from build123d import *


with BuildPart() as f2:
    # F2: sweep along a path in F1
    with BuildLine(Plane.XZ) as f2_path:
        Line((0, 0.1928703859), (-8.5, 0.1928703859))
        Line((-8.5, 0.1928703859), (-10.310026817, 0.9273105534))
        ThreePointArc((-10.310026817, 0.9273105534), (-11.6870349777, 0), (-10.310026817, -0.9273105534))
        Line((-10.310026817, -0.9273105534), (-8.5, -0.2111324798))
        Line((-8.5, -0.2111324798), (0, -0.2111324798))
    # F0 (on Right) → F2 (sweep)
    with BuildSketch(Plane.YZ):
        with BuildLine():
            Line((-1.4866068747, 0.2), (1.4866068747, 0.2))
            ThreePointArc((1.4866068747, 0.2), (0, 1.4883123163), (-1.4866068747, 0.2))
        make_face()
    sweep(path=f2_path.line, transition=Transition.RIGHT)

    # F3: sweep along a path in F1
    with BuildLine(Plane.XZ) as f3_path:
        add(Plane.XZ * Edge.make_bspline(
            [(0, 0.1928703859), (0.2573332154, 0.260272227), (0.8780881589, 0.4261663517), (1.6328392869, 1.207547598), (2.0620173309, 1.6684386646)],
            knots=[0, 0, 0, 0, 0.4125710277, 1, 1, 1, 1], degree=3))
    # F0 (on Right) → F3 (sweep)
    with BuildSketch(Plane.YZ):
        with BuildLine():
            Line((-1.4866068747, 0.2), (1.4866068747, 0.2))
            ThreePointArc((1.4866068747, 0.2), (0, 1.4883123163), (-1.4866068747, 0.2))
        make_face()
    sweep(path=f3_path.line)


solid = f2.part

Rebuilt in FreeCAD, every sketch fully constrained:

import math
import FreeCAD as App
import Part
import Sketcher

doc = App.newDocument("Part")
params = doc.addObject("Spreadsheet::Sheet", "Params")
for row, (alias, value) in enumerate([
    ("sketch2_width", "8.5 mm"),
], start=1):
    params.set(f"A{row}", alias)
    params.set(f"B{row}", "=" + value)
    params.setAlias(f"B{row}", alias)

body = doc.addObject("PartDesign::Body", "Body")

sketch1 = body.newObject("Sketcher::SketchObject", "Sketch")
sketch1.AttachmentSupport = (doc.getObject("YZ_Plane"), [""])
sketch1.MapMode = "FlatFace"
sketch1.addGeometry([
    Part.LineSegment(App.Vector(-1.5, 0.2, 0), App.Vector(1.5, 0.2, 0)),
    Part.ArcOfCircle(Part.Circle(App.Vector(0, 0, 0), App.Vector(0, 0, 1), 1.5), math.radians(8), math.radians(172)),
], False)
sketch1.addConstraint([
    Sketcher.Constraint("Coincident", 0, 1, 1, 2),
    Sketcher.Constraint("Coincident", 1, 1, 0, 2),
    Sketcher.Constraint("Horizontal", 0),
    Sketcher.Constraint("PointOnObject", 1, 3, -2),
    Sketcher.Constraint("DistanceY", -1, 1, 0, 1, 0.2),
    Sketcher.Constraint("Radius", 1, 1.501867),
    Sketcher.Constraint("DistanceX", 0, 1, 0, 2, 2.973214),
])

sketch2 = body.newObject("Sketcher::SketchObject", "Sketch001")
sketch2.AttachmentSupport = (doc.getObject("XZ_Plane"), [""])
sketch2.MapMode = "FlatFace"
sketch2.addGeometry([
    Part.LineSegment(App.Vector(0, 0.2, 0), App.Vector(-8.5, 0.2, 0)),
    Part.LineSegment(App.Vector(-8.5, 0.2, 0), App.Vector(-10.3, 0.9, 0)),
    Part.ArcOfCircle(Part.Circle(App.Vector(-10.7, 0, 0), App.Vector(0, 0, 1), 1), math.radians(68), math.radians(292)),
    Part.LineSegment(App.Vector(-10.3, -0.9, 0), App.Vector(-8.5, -0.2, 0)),
    Part.LineSegment(App.Vector(-8.5, -0.2, 0), App.Vector(0, -0.2, 0)),
], False)
sketch2.addConstraint([
    Sketcher.Constraint("Coincident", 0, 2, 1, 1),
    Sketcher.Constraint("Tangent", 1, 2, 2, 1),
    Sketcher.Constraint("Coincident", 2, 2, 3, 1),
    Sketcher.Constraint("Coincident", 3, 2, 4, 1),
    Sketcher.Constraint("Horizontal", 0),
    Sketcher.Constraint("Horizontal", 4),
    Sketcher.Constraint("Symmetric", 1, 2, 2, 2, -1),
    Sketcher.Constraint("PointOnObject", 0, 1, -2),
    Sketcher.Constraint("PointOnObject", 4, 2, -2),
    Sketcher.Constraint("Vertical", 0, 2, 3, 2),
    Sketcher.Constraint("DistanceX", 0, 2, 0, 1, 8.5),
    Sketcher.Constraint("Radius", 2, 1.000741),
    Sketcher.Constraint("DistanceY", -1, 1, 0, 1, 0.19287),
    Sketcher.Constraint("DistanceY", -1, 1, 1, 2, 0.927311),
    Sketcher.Constraint("DistanceY", 2, 2, 3, 2, 0.716178),
])
sketch2.setExpression("Constraints[10]", "Params.sketch2_width")
doc.recompute()

additivepipe = body.newObject("PartDesign::AdditivePipe", "AdditivePipe")
additivepipe.Profile = sketch1
additivepipe.Spine = (sketch2, ["Edge1", "Edge2", "Edge3", "Edge4", "Edge5"])
additivepipe.Transition = "Right corner"

sketch3 = body.newObject("Sketcher::SketchObject", "Sketch002")
sketch3.AttachmentSupport = (doc.getObject("YZ_Plane"), [""])
sketch3.MapMode = "FlatFace"
sketch3.addGeometry([
    Part.LineSegment(App.Vector(-1.5, 0.2, 0), App.Vector(1.5, 0.2, 0)),
    Part.ArcOfCircle(Part.Circle(App.Vector(0, 0, 0), App.Vector(0, 0, 1), 1.5), math.radians(8), math.radians(172)),
], False)
sketch3.addConstraint([
    Sketcher.Constraint("Coincident", 0, 1, 1, 2),
    Sketcher.Constraint("Coincident", 1, 1, 0, 2),
    Sketcher.Constraint("Horizontal", 0),
    Sketcher.Constraint("PointOnObject", 1, 3, -2),
    Sketcher.Constraint("DistanceY", -1, 1, 0, 1, 0.2),
    Sketcher.Constraint("Radius", 1, 1.501867),
    Sketcher.Constraint("DistanceX", 0, 1, 0, 2, 2.973214),
])

sketch4 = body.newObject("Sketcher::SketchObject", "Sketch003")
sketch4.AttachmentSupport = (doc.getObject("XZ_Plane"), [""])
sketch4.MapMode = "FlatFace"
sketch4.addGeometry(Part.BSplineCurve([App.Vector(0, 0.19287, 0), App.Vector(0.257333, 0.260272, 0), App.Vector(0.878088, 0.426166, 0), App.Vector(1.632839, 1.207548, 0), App.Vector(2.062017, 1.668439, 0)], [4, 1, 4], [0, 0.412571028, 1], False, 3, [1, 1, 1, 1, 1], False), False)
sketch4.addConstraint(Sketcher.Constraint("Block", 0))
doc.recompute()

additivepipe2 = body.newObject("PartDesign::AdditivePipe", "AdditivePipe001")
additivepipe2.Profile = sketch3
additivepipe2.Spine = (sketch4, ["Edge1"])

doc.recompute()
